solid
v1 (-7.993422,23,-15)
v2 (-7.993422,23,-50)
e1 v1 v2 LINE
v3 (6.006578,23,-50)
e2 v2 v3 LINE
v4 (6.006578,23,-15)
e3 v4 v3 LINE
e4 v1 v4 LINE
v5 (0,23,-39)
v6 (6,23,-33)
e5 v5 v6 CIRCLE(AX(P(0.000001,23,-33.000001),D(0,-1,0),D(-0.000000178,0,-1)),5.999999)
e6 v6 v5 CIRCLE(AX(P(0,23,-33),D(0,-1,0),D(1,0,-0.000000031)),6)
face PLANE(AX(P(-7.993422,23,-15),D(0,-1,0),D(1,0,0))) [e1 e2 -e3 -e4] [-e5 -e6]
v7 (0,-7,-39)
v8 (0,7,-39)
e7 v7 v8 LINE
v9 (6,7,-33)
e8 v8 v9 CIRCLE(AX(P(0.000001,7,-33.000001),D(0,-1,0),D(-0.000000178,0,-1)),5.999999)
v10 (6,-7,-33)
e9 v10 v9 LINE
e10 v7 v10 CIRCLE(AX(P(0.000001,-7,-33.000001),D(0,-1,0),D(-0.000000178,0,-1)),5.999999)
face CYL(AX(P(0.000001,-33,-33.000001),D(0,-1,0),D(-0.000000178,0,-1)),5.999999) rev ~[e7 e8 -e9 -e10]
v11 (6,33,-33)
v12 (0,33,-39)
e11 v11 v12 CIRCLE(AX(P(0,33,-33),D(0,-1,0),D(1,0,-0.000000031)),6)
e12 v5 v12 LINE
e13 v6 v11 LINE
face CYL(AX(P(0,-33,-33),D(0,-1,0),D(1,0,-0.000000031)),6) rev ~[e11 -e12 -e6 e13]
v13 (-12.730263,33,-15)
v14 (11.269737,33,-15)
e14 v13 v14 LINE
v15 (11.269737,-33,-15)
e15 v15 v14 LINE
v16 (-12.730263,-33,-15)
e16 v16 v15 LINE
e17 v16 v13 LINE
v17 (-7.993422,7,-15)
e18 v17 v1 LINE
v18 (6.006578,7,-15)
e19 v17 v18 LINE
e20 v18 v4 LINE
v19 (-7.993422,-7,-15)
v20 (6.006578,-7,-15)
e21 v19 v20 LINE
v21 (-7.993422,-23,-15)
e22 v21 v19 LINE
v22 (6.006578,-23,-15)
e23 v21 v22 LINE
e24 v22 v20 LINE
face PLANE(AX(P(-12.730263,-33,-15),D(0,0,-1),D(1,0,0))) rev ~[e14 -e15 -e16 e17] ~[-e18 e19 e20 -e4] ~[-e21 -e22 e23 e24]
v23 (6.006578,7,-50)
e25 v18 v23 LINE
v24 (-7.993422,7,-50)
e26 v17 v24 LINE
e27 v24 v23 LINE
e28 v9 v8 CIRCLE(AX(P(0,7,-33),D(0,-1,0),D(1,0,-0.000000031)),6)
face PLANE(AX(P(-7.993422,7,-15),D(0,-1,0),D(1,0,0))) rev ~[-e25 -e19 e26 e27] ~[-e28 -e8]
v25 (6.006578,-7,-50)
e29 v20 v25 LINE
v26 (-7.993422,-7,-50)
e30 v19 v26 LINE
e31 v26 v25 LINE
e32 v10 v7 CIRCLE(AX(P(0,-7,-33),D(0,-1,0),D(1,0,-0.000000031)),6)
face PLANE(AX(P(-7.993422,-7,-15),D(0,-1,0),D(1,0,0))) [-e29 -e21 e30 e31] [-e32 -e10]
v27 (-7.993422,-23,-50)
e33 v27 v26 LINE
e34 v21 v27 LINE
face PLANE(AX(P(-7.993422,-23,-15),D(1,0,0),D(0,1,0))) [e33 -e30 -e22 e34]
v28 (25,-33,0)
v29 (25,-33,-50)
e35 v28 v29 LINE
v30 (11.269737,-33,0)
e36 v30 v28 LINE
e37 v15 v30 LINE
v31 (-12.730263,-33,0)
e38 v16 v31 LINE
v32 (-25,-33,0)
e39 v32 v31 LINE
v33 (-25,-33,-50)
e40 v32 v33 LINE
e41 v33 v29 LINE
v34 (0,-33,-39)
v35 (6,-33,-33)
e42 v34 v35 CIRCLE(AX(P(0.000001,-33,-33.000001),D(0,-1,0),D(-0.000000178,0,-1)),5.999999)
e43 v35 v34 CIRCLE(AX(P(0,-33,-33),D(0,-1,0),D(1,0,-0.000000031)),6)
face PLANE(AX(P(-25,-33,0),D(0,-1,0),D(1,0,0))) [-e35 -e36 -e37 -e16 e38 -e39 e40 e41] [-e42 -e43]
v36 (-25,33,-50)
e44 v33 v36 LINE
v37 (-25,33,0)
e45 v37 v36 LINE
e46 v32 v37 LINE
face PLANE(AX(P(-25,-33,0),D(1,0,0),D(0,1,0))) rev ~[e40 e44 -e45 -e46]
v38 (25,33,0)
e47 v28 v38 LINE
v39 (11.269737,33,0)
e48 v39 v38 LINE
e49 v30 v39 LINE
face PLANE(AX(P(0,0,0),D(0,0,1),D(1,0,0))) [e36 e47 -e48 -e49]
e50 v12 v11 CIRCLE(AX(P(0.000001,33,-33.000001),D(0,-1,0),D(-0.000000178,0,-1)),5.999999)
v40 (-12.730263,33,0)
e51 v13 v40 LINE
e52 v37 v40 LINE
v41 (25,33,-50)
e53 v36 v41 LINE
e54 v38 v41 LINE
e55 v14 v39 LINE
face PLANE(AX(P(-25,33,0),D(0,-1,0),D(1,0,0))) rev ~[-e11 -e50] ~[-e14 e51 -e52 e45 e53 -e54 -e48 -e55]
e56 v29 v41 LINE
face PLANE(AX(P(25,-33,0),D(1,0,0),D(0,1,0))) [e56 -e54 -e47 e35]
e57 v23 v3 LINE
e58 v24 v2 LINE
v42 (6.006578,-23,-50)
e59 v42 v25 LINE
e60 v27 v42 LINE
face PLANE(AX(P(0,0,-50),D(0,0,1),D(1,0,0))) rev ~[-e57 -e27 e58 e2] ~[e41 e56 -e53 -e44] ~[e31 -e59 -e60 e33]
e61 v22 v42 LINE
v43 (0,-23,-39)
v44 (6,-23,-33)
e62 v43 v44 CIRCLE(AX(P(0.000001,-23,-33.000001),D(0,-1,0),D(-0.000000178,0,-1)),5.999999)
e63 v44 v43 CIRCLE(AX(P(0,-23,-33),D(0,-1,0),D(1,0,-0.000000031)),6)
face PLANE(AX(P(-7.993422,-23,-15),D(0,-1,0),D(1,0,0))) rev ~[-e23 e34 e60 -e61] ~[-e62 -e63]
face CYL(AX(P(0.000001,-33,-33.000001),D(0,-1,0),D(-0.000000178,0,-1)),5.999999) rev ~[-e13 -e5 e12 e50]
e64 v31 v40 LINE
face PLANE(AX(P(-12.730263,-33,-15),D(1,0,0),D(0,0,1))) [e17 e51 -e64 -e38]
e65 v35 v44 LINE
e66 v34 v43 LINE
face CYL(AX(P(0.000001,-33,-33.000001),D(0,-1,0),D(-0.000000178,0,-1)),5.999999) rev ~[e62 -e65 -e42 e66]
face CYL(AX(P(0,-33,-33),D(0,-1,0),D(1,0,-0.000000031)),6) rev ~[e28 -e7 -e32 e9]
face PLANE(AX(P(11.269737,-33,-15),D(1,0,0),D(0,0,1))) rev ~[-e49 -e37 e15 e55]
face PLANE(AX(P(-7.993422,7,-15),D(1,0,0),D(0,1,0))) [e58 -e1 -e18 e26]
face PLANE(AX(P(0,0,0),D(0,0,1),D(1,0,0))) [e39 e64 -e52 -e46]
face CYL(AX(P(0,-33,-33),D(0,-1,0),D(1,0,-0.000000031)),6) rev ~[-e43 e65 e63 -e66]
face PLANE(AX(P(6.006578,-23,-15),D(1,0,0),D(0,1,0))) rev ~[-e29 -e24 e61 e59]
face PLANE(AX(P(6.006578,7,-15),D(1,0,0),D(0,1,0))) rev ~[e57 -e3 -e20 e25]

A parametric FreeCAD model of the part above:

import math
import FreeCAD as App
import Part
import Sketcher
from FreeCAD import Vector
Q = App.Units.Quantity


def add_polygon(sketch, points):
    """Adds a closed chain of lines whose ends are joined by coincident constraints."""
    first, n = sketch.GeometryCount, len(points)
    for a, b in zip(points, points[1:] + points[:1]):
        sketch.addGeometry(Part.LineSegment(App.Vector(*a, 0), App.Vector(*b, 0)), False)
    for i in range(n):
        sketch.addConstraint(Sketcher.Constraint("Coincident", first + i, 2, first + (i + 1) % n, 1))

doc = App.newDocument("Part")
body = doc.addObject("PartDesign::Body", "Body")

# Sketch on XY plane
sketch1 = body.newObject("Sketcher::SketchObject", "Sketch")
sketch1.AttachmentSupport = (doc.getObject("XY_Plane"), [""])
sketch1.MapMode = "FlatFace"
add_polygon(sketch1, [(-25, 33), (-25, -33), (25, -33), (25, 33)])  # lines 0-3
sketch1.addConstraint(Sketcher.Constraint("Vertical", 0))
sketch1.addConstraint(Sketcher.Constraint("Horizontal", 1))
sketch1.addConstraint(Sketcher.Constraint("Vertical", 2))
sketch1.addConstraint(Sketcher.Constraint("Horizontal", 3))
sketch1.addConstraint(Sketcher.Constraint("Symmetric", 0, 2, 2, 2, -1, 1))
sketch1.addConstraint(Sketcher.Constraint("DistanceX", 1, 1, 1, 2, Q("50 mm")))
sketch1.addConstraint(Sketcher.Constraint("DistanceY", 0, 2, 0, 1, Q("66 mm")))
pad1 = body.newObject("PartDesign::Pad", "Pad")
pad1.Profile = sketch1
pad1.Length = 50
pad1.Reversed = True

# Sketch on XZ plane
sketch2 = body.newObject("Sketcher::SketchObject", "Sketch001")
sketch2.AttachmentSupport = (doc.getObject("XZ_Plane"), [""])
sketch2.MapMode = "FlatFace"
sketch2.AttachmentOffset = App.Placement(Vector(0, 0, 33), App.Rotation())
add_polygon(sketch2, [(-13, 0), (-13, -15), (11, -15), (11, 0)])  # lines 0-3
sketch2.addConstraint(Sketcher.Constraint("Vertical", 0))
sketch2.addConstraint(Sketcher.Constraint("Horizontal", 1))
sketch2.addConstraint(Sketcher.Constraint("Vertical", 2))
sketch2.addConstraint(Sketcher.Constraint("Horizontal", 3))
sketch2.addConstraint(Sketcher.Constraint("PointOnObject", 2, 2, -1))
sketch2.addConstraint(Sketcher.Constraint("DistanceX", 1, 1, 1, 2, Q("24 mm")))
sketch2.addConstraint(Sketcher.Constraint("DistanceY", 0, 2, 0, 1, Q("15 mm")))
sketch2.addConstraint(Sketcher.Constraint("DistanceX", 0, 2, -1, 1, Q("12.730263 mm")))
pocket1 = body.newObject("PartDesign::Pocket", "Pocket")
pocket1.Profile = sketch2
pocket1.Length = 100

# Sketch on XZ plane
sketch3 = body.newObject("Sketcher::SketchObject", "Sketch002")
sketch3.AttachmentSupport = (doc.getObject("XZ_Plane"), [""])
sketch3.MapMode = "FlatFace"
sketch3.AttachmentOffset = App.Placement(Vector(0, 0, 33), App.Rotation())
sketch3.addGeometry(Part.ArcOfCircle(Part.Circle(Vector(0, -33, 0), Vector(0, 0, 1), 6), math.radians(0), math.radians(270)), False)
sketch3.addGeometry(Part.ArcOfCircle(Part.Circle(Vector(0, -33, 0), Vector(0, 0, 1), 6), math.radians(-90), math.radians(0)), False)
sketch3.addConstraint(Sketcher.Constraint("Tangent", 0, 1, 1, 2))
sketch3.addConstraint(Sketcher.Constraint("Coincident", 1, 1, 0, 2))
sketch3.addConstraint(Sketcher.Constraint("PointOnObject", 0, 3, -2))
sketch3.addConstraint(Sketcher.Constraint("PointOnObject", 1, 1, -2))
sketch3.addConstraint(Sketcher.Constraint("Horizontal", 1, 3, 0, 1))
sketch3.addConstraint(Sketcher.Constraint("Radius", 0, Q("6 mm")))
sketch3.addConstraint(Sketcher.Constraint("DistanceY", 0, 3, -1, 1, Q("33 mm")))
pocket2 = body.newObject("PartDesign::Pocket", "Pocket001")
pocket2.Profile = sketch3
pocket2.Length = 100

# Sketch on XY plane
sketch4 = body.newObject("Sketcher::SketchObject", "Sketch003")
sketch4.AttachmentSupport = (doc.getObject("XY_Plane"), [""])
sketch4.MapMode = "FlatFace"
sketch4.AttachmentOffset = App.Placement(Vector(0, 0, -15), App.Rotation())
add_polygon(sketch4, [(-8, 23), (-8, 7), (6, 7), (6, 23)])  # lines 0-3
add_polygon(sketch4, [(-8, -7), (-8, -23), (6, -23), (6, -7)])  # lines 4-7
sketch4.addConstraint(Sketcher.Constraint("Vertical", 0))
sketch4.addConstraint(Sketcher.Constraint("Horizontal", 1))
sketch4.addConstraint(Sketcher.Constraint("Vertical", 2))
sketch4.addConstraint(Sketcher.Constraint("Horizontal", 3))
sketch4.addConstraint(Sketcher.Constraint("Vertical", 4))
sketch4.addConstraint(Sketcher.Constraint("Horizontal", 5))
sketch4.addConstraint(Sketcher.Constraint("Vertical", 6))
sketch4.addConstraint(Sketcher.Constraint("Horizontal", 7))
sketch4.addConstraint(Sketcher.Constraint("Symmetric", 3, 2, 4, 2, -1))
sketch4.addConstraint(Sketcher.Constraint("Symmetric", 1, 2, 6, 2, -1))
sketch4.addConstraint(Sketcher.Constraint("DistanceX", 1, 1, 1, 2, Q("14 mm")))
sketch4.addConstraint(Sketcher.Constraint("DistanceY", 0, 2, 0, 1, Q("16 mm")))
sketch4.addConstraint(Sketcher.Constraint("DistanceY", -1, 1, 0, 2, Q("7 mm")))
sketch4.addConstraint(Sketcher.Constraint("DistanceX", 0, 2, -1, 1, Q("7.993422 mm")))
pocket3 = body.newObject("PartDesign::Pocket", "Pocket002")
pocket3.Profile = sketch4
pocket3.Length = 100

doc.recompute()
